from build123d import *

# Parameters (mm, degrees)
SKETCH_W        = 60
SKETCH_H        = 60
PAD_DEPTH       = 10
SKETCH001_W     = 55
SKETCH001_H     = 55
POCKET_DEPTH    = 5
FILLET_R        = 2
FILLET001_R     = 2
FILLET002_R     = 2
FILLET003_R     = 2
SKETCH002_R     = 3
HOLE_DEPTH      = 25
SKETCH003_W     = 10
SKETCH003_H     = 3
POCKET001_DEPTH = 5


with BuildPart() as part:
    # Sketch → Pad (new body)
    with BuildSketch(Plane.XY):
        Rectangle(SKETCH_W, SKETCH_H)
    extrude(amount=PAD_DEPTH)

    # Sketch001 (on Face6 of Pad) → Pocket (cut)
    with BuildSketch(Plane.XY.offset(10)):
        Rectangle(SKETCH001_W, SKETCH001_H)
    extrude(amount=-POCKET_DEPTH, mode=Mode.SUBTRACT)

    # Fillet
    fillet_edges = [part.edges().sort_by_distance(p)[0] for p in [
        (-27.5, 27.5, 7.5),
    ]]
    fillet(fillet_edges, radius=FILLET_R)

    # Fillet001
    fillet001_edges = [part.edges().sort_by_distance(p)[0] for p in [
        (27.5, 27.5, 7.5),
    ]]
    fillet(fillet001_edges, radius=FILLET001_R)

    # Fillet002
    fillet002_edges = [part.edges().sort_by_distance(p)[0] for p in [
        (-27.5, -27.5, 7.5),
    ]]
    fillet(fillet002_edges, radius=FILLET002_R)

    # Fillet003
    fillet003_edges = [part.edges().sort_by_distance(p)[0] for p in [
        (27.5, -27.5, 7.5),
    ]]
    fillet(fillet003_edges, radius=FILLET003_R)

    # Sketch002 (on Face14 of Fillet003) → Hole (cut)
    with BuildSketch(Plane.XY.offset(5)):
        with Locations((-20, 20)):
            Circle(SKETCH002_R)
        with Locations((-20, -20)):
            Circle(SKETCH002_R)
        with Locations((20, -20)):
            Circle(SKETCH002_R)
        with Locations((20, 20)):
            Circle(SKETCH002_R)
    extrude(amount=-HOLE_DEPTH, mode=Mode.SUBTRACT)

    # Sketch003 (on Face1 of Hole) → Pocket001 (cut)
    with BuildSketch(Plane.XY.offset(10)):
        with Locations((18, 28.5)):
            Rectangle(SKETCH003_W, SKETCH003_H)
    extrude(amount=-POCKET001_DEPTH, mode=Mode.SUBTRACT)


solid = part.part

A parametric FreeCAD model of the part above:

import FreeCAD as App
import Part
import Sketcher
from FreeCAD import Vector


def edges_at(feature, points):
    """Names of the edges that pass closest to the given points."""
    edges = feature.Shape.Edges
    near = lambda p: min(range(len(edges)), key=lambda i: edges[i].distToShape(Part.Vertex(*p))[0])
    return sorted({f"Edge{near(p) + 1}" for p in points})

doc = App.newDocument("Part")
body = doc.addObject("PartDesign::Body", "Body")

# Sketch on XY plane
sketch1 = body.newObject("Sketcher::SketchObject", "Sketch")
sketch1.AttachmentSupport = (doc.getObject("XY_Plane"), [""])
sketch1.MapMode = "FlatFace"
sketch1.addGeometry([
    Part.LineSegment(Vector(-30, 30, 0), Vector(-30, -30, 0)),
    Part.LineSegment(Vector(-30, -30, 0), Vector(30, -30, 0)),
    Part.LineSegment(Vector(30, -30, 0), Vector(30, 30, 0)),
    Part.LineSegment(Vector(30, 30, 0), Vector(-30, 30, 0)),
], False)
sketch1.addConstraint([
    Sketcher.Constraint("Coincident", 0, 2, 1, 1),
    Sketcher.Constraint("Coincident", 1, 2, 2, 1),
    Sketcher.Constraint("Coincident", 2, 2, 3, 1),
    Sketcher.Constraint("Coincident", 3, 2, 0, 1),
    Sketcher.Constraint("Vertical", 0),
    Sketcher.Constraint("Horizontal", 1),
    Sketcher.Constraint("Vertical", 2),
    Sketcher.Constraint("Horizontal", 3),
    Sketcher.Constraint("Symmetric", 0, 2, 2, 2, -1, 1),
    Sketcher.Constraint("Equal", 3, 0),
    Sketcher.Constraint("DistanceX", 1, 1, 1, 2, 60.0),
])
pad1 = body.newObject("PartDesign::Pad", "Pad")
pad1.Profile = sketch1
pad1.Length = 10

# Sketch on XY plane
sketch2 = body.newObject("Sketcher::SketchObject", "Sketch001")
sketch2.AttachmentSupport = (doc.getObject("XY_Plane"), [""])
sketch2.MapMode = "FlatFace"
sketch2.AttachmentOffset = App.Placement(Vector(0, 0, 10), App.Rotation())
sketch2.addGeometry([
    Part.LineSegment(Vector(-28, 28, 0), Vector(-28, -28, 0)),
    Part.LineSegment(Vector(-28, -28, 0), Vector(28, -28, 0)),
    Part.LineSegment(Vector(28, -28, 0), Vector(28, 28, 0)),
    Part.LineSegment(Vector(28, 28, 0), Vector(-28, 28, 0)),
], False)
sketch2.addConstraint([
    Sketcher.Constraint("Coincident", 0, 2, 1, 1),
    Sketcher.Constraint("Coincident", 1, 2, 2, 1),
    Sketcher.Constraint("Coincident", 2, 2, 3, 1),
    Sketcher.Constraint("Coincident", 3, 2, 0, 1),
    Sketcher.Constraint("Vertical", 0),
    Sketcher.Constraint("Horizontal", 1),
    Sketcher.Constraint("Vertical", 2),
    Sketcher.Constraint("Horizontal", 3),
    Sketcher.Constraint("Symmetric", 0, 2, 2, 2, -1, 1),
    Sketcher.Constraint("Equal", 3, 0),
    Sketcher.Constraint("DistanceX", 1, 1, 1, 2, 55.0),
])
pocket1 = body.newObject("PartDesign::Pocket", "Pocket")
pocket1.Profile = sketch2
pocket1.Length = 5
doc.recompute()

fillet = body.newObject("PartDesign::Fillet", "Fillet")
fillet.Base = (pocket1, edges_at(pocket1, [(-27.5, 27.5, 7.5)]))
fillet.Radius = 2
doc.recompute()

fillet2 = body.newObject("PartDesign::Fillet", "Fillet001")
fillet2.Base = (fillet, edges_at(fillet, [(27.5, 27.5, 7.5)]))
fillet2.Radius = 2
doc.recompute()

fillet3 = body.newObject("PartDesign::Fillet", "Fillet002")
fillet3.Base = (fillet2, edges_at(fillet2, [(-27.5, -27.5, 7.5)]))
fillet3.Radius = 2
doc.recompute()

fillet4 = body.newObject("PartDesign::Fillet", "Fillet003")
fillet4.Base = (fillet3, edges_at(fillet3, [(27.5, -27.5, 7.5)]))
fillet4.Radius = 2

# Sketch on XY plane
sketch3 = body.newObject("Sketcher::SketchObject", "Sketch002")
sketch3.AttachmentSupport = (doc.getObject("XY_Plane"), [""])
sketch3.MapMode = "FlatFace"
sketch3.AttachmentOffset = App.Placement(Vector(0, 0, 5), App.Rotation())
sketch3.addGeometry([
    Part.Circle(Vector(-20, 20, 0), Vector(0, 0, 1), 3),
    Part.Circle(Vector(-20, -20, 0), Vector(0, 0, 1), 3),
    Part.Circle(Vector(20, -20, 0), Vector(0, 0, 1), 3),
    Part.Circle(Vector(20, 20, 0), Vector(0, 0, 1), 3),
], False)
sketch3.addConstraint([
    Sketcher.Constraint("Equal", 0, 1),
    Sketcher.Constraint("Equal", 1, 2),
    Sketcher.Constraint("Equal", 2, 3),
    Sketcher.Constraint("Symmetric", 0, 3, 2, 3, -1, 1),
    Sketcher.Constraint("Symmetric", 1, 3, 3, 3, -1, 1),
    Sketcher.Constraint("Symmetric", 1, 3, 2, 3, -2),
    Sketcher.Constraint("Diameter", 0, 6.0),
    Sketcher.Constraint("DistanceX", 0, 3, -1, 1, 20.0),
    Sketcher.Constraint("DistanceY", -1, 1, 0, 3, 20.0),
])
pocket2 = body.newObject("PartDesign::Pocket", "Pocket001")
pocket2.Profile = sketch3
pocket2.Length = 25

# Sketch on XY plane
sketch4 = body.newObject("Sketcher::SketchObject", "Sketch003")
sketch4.AttachmentSupport = (doc.getObject("XY_Plane"), [""])
sketch4.MapMode = "FlatFace"
sketch4.AttachmentOffset = App.Placement(Vector(0, 0, 10), App.Rotation())
sketch4.addGeometry([
    Part.LineSegment(Vector(13, 30, 0), Vector(13, 27, 0)),
    Part.LineSegment(Vector(13, 27, 0), Vector(23, 27, 0)),
    Part.LineSegment(Vector(23, 27, 0), Vector(23, 30, 0)),
    Part.LineSegment(Vector(23, 30, 0), Vector(13, 30, 0)),
], False)
sketch4.addConstraint([
    Sketcher.Constraint("Coincident", 0, 2, 1, 1),
    Sketcher.Constraint("Coincident", 1, 2, 2, 1),
    Sketcher.Constraint("Coincident", 2, 2, 3, 1),
    Sketcher.Constraint("Coincident", 3, 2, 0, 1),
    Sketcher.Constraint("Vertical", 0),
    Sketcher.Constraint("Horizontal", 1),
    Sketcher.Constraint("Vertical", 2),
    Sketcher.Constraint("Horizontal", 3),
    Sketcher.Constraint("DistanceX", 1, 1, 1, 2, 10.0),
    Sketcher.Constraint("DistanceY", 0, 2, 0, 1, 3.0),
    Sketcher.Constraint("DistanceX", -1, 1, 0, 2, 13.0),
    Sketcher.Constraint("DistanceY", -1, 1, 0, 2, 27.0),
])
pocket3 = body.newObject("PartDesign::Pocket", "Pocket002")
pocket3.Profile = sketch4
pocket3.Length = 5

doc.recompute()
